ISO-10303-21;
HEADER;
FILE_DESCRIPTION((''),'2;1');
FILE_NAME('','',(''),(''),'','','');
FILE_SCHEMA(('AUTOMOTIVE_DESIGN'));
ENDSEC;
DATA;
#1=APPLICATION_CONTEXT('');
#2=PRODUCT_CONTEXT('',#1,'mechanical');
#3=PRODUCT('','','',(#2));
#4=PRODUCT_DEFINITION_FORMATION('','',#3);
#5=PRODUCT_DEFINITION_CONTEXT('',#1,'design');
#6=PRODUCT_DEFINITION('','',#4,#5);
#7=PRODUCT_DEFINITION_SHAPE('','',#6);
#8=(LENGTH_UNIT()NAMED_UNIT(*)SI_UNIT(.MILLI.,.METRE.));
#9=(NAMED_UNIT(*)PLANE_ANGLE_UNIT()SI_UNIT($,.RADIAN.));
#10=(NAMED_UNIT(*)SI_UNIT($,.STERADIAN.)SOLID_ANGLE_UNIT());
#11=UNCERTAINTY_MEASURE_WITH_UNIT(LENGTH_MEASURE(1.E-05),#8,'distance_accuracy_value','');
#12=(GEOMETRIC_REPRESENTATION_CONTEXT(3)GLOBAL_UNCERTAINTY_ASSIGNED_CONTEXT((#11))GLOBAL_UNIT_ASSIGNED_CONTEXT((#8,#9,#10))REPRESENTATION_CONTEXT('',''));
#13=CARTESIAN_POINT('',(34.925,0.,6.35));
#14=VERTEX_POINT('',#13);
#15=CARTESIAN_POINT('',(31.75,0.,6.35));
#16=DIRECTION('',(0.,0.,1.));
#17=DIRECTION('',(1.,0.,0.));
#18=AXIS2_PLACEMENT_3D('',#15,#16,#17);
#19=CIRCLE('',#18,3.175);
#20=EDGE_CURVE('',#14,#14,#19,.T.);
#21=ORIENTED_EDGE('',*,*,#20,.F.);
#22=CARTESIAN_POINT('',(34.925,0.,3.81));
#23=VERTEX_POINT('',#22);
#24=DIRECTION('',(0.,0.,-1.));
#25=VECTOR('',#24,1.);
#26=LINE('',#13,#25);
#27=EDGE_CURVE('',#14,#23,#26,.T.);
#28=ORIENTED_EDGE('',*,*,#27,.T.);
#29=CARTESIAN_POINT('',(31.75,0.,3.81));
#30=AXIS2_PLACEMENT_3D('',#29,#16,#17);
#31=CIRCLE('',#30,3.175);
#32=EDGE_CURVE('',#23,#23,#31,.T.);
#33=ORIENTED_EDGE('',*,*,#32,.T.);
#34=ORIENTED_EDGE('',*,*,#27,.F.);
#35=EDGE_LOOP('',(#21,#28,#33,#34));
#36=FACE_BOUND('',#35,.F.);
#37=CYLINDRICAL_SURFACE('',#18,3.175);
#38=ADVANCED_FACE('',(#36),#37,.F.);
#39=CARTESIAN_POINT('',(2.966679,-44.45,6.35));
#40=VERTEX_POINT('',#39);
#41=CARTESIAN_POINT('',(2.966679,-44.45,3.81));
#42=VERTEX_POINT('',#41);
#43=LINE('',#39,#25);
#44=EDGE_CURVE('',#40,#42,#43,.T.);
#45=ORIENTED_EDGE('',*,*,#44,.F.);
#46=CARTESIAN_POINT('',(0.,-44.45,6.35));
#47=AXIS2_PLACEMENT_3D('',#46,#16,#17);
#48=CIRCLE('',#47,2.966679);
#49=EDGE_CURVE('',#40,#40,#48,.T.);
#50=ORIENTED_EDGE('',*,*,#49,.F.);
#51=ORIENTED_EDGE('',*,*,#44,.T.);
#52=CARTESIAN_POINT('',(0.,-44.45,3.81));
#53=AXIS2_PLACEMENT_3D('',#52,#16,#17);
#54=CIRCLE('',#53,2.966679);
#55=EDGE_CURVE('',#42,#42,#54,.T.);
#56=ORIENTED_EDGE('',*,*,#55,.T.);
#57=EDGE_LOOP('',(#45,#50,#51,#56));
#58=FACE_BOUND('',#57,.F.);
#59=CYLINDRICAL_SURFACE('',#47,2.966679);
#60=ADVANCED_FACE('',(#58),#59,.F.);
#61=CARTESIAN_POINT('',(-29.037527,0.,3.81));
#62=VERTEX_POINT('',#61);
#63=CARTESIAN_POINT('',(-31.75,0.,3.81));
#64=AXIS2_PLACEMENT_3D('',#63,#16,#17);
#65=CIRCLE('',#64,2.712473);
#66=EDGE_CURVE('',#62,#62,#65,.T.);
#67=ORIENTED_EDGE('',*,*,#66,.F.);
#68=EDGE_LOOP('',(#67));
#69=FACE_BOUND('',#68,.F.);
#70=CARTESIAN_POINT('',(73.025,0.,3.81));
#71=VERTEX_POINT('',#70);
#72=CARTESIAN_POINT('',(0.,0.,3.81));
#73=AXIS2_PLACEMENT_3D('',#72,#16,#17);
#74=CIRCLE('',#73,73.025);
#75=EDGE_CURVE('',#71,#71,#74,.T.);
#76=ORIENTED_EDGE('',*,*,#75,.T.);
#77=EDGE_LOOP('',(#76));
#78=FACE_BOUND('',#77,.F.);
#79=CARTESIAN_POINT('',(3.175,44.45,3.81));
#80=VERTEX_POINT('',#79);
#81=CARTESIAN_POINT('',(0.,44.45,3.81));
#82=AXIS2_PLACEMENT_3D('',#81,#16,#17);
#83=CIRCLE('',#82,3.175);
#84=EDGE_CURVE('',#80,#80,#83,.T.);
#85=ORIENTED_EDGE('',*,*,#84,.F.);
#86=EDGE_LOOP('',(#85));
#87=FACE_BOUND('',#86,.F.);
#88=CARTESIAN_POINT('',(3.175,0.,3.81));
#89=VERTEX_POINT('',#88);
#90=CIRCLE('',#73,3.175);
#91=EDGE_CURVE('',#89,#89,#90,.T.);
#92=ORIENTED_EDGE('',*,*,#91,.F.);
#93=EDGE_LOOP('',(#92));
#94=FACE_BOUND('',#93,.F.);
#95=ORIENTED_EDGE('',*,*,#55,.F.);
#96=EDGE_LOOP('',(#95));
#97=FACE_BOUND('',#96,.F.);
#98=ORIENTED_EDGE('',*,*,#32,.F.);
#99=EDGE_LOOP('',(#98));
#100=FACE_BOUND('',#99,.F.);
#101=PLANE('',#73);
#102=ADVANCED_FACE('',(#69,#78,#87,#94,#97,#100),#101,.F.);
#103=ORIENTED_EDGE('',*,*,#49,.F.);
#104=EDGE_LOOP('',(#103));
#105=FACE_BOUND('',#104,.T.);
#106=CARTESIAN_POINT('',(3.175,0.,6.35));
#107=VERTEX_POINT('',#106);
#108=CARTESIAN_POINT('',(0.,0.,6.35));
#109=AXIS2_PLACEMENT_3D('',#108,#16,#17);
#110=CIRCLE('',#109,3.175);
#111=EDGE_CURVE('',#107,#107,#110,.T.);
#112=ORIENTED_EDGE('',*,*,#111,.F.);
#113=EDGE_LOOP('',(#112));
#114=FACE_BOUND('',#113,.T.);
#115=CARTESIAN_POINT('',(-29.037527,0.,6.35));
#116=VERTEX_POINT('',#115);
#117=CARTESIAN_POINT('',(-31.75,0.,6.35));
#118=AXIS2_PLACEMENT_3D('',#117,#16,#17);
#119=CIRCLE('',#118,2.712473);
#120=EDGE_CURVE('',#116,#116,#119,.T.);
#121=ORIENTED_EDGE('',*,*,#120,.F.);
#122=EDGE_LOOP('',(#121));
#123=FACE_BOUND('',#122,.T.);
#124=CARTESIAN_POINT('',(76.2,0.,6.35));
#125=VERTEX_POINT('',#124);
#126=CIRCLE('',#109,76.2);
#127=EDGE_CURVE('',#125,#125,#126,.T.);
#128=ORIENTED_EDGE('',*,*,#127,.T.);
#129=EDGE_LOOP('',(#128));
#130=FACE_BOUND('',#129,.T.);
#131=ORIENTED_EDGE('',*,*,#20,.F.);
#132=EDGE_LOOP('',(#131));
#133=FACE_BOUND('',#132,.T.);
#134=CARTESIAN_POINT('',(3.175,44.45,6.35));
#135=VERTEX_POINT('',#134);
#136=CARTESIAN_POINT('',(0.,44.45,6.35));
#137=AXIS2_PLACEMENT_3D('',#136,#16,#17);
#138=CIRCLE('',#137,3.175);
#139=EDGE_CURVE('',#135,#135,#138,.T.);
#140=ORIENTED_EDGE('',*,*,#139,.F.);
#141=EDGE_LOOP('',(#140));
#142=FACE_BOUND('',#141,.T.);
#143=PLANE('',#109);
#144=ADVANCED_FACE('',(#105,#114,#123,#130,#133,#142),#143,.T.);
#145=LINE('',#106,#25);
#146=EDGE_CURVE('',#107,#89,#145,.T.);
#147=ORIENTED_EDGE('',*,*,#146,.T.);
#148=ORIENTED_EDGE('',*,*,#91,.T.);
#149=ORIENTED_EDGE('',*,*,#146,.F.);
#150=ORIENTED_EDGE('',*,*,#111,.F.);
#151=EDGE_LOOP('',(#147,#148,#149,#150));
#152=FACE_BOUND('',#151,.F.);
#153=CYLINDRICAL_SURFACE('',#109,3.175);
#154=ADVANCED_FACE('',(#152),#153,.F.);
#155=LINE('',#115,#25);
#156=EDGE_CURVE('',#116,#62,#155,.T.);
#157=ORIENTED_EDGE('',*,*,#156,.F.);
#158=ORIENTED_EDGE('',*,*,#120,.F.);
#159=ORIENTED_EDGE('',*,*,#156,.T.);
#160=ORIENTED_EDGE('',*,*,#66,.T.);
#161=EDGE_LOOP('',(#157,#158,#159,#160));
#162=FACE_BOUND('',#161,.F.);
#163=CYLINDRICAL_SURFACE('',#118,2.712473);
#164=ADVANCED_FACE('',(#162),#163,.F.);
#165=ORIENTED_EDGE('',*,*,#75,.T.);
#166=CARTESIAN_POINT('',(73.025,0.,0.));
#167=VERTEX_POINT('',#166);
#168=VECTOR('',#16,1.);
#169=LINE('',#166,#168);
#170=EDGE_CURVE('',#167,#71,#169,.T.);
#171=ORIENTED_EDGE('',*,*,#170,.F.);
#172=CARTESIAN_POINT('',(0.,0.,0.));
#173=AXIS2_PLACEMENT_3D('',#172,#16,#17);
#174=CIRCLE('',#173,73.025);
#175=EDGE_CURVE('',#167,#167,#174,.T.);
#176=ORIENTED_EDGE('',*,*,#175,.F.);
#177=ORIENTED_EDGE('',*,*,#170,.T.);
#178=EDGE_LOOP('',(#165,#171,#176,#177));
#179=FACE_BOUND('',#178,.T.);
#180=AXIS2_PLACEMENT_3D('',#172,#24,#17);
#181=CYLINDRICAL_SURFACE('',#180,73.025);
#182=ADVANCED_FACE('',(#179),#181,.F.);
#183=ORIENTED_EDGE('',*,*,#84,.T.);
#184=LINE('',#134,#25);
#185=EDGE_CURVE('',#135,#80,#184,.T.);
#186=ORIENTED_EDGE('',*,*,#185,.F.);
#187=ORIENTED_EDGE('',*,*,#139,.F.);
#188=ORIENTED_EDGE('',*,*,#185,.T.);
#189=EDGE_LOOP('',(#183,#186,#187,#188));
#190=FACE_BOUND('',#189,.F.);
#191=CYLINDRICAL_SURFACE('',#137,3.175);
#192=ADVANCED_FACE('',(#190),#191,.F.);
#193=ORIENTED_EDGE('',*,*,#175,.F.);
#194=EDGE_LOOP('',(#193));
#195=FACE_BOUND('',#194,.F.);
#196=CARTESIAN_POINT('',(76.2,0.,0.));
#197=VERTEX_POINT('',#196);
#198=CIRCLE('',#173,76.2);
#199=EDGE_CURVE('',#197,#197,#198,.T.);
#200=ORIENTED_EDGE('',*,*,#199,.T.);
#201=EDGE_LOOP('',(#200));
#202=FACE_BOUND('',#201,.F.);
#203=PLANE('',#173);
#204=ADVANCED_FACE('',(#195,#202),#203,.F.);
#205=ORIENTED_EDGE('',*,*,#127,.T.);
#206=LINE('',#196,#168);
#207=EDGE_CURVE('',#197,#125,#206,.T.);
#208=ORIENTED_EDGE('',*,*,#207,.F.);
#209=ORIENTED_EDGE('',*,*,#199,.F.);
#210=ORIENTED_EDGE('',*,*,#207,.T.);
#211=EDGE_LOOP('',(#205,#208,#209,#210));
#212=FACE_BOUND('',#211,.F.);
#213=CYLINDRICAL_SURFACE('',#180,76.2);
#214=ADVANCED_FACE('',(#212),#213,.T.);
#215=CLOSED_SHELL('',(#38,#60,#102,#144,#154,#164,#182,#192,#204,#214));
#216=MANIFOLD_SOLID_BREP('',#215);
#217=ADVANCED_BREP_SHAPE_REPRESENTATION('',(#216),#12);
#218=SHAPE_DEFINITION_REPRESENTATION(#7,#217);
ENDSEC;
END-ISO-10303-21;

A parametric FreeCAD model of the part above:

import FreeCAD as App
import Part
import Sketcher
Q = App.Units.Quantity

doc = App.newDocument("Part")
body = doc.addObject("PartDesign::Body", "Body")

# Sketch on XY plane
sketch1 = body.newObject("Sketcher::SketchObject", "Sketch")
sketch1.AttachmentSupport = (doc.getObject("XY_Plane"), [""])
sketch1.MapMode = "FlatFace"
sketch1.addGeometry(Part.Circle(App.Vector(0, 0, 0), App.Vector(0, 0, 1), 76.2), False)
sketch1.addConstraint([
    Sketcher.Constraint("Coincident", 0, 3, -1, 1),
    Sketcher.Constraint("Diameter", 0, Q("6 in")),
])
pad1 = body.newObject("PartDesign::Pad", "Pad")
pad1.Profile = sketch1
pad1.Length = Q("0.25 in")

# Sketch on XY plane
sketch2 = body.newObject("Sketcher::SketchObject", "Sketch001")
sketch2.AttachmentSupport = (doc.getObject("XY_Plane"), [""])
sketch2.MapMode = "FlatFace"
sketch2.addGeometry(Part.Circle(App.Vector(0, 0, 0), App.Vector(0, 0, 1), 73.025), False)
sketch2.addConstraint([
    Sketcher.Constraint("Coincident", 0, 3, -1, 1),
    Sketcher.Constraint("Diameter", 0, Q("5.75 in")),
])
pocket1 = body.newObject("PartDesign::Pocket", "Pocket")
pocket1.Profile = sketch2
pocket1.Length = Q("0.15 in")
pocket1.Reversed = True

# Sketch on XY plane
sketch3 = body.newObject("Sketcher::SketchObject", "Sketch002")
sketch3.AttachmentSupport = (doc.getObject("XY_Plane"), [""])
sketch3.MapMode = "FlatFace"
sketch3.AttachmentOffset = App.Placement(App.Vector(0, 0, 0.25 * 25.4), App.Rotation())
sketch3.addGeometry([
    Part.Circle(App.Vector(-31.75, 0, 0), App.Vector(0, 0, 1), 2.712473),
    Part.Circle(App.Vector(31.75, 0, 0), App.Vector(0, 0, 1), 3.175),
    Part.Circle(App.Vector(0, 0, 0), App.Vector(0, 0, 1), 3.175),
], False)
sketch3.addConstraint([
    Sketcher.Constraint("Coincident", 2, 3, -1, 1),
    Sketcher.Constraint("Equal", 1, 2),
    Sketcher.Constraint("Symmetric", 0, 3, 1, 3, -1, 1),
    Sketcher.Constraint("PointOnObject", 0, 3, -1),
    Sketcher.Constraint("Diameter", 1, Q("0.25 in")),
    Sketcher.Constraint("DistanceX", 0, 3, 1, 3, Q("2.5 in")),
    Sketcher.Constraint("Diameter", 0, 5.424946),
])
pocket2 = body.newObject("PartDesign::Pocket", "Pocket001")
pocket2.Profile = sketch3
pocket2.Type = "ThroughAll"

# Sketch on XY plane
sketch4 = body.newObject("Sketcher::SketchObject", "Sketch003")
sketch4.AttachmentSupport = (doc.getObject("XY_Plane"), [""])
sketch4.MapMode = "FlatFace"
sketch4.AttachmentOffset = App.Placement(App.Vector(0, 0, 0.25 * 25.4), App.Rotation())
sketch4.addGeometry([
    Part.Circle(App.Vector(0, 44.45, 0), App.Vector(0, 0, 1), 3.175),
    Part.Circle(App.Vector(0, -44.45, 0), App.Vector(0, 0, 1), 2.966679),
], False)
sketch4.addConstraint([
    Sketcher.Constraint("Symmetric", 0, 3, 1, 3, -1, 1),
    Sketcher.Constraint("PointOnObject", 0, 3, -2),
    Sketcher.Constraint("Diameter", 0, Q("0.25 in")),
    Sketcher.Constraint("DistanceY", 1, 3, 0, 3, Q("3.5 in")),
    Sketcher.Constraint("Diameter", 1, 5.933358),
])
pocket3 = body.newObject("PartDesign::Pocket", "Pocket002")
pocket3.Profile = sketch4
pocket3.Type = "ThroughAll"

doc.recompute()
